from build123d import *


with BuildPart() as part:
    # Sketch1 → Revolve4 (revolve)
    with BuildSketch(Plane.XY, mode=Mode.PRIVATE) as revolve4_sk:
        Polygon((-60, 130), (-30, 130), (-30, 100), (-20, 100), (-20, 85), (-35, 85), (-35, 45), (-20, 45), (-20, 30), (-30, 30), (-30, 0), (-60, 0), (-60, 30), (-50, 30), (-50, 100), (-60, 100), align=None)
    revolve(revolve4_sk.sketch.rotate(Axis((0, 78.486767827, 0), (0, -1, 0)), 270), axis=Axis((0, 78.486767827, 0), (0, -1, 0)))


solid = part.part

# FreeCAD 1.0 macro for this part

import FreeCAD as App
import Part
import Sketcher
from FreeCAD import Vector


def add_polygon(sketch, points):
    """Adds a closed chain of lines whose ends are joined by coincident constraints."""
    first, n = sketch.GeometryCount, len(points)
    for a, b in zip(points, points[1:] + points[:1]):
        sketch.addGeometry(Part.LineSegment(App.Vector(*a, 0), App.Vector(*b, 0)), False)
    for i in range(n):
        sketch.addConstraint(Sketcher.Constraint("Coincident", first + i, 2, first + (i + 1) % n, 1))

doc = App.newDocument("Part")
body = doc.addObject("PartDesign::Body", "Body")

sketch1 = body.newObject("Sketcher::SketchObject", "Sketch")
sketch1.AttachmentSupport = (doc.getObject("XY_Plane"), [""])
sketch1.MapMode = "FlatFace"
add_polygon(sketch1, [(-30, 130), (-60, 130), (-60, 100), (-50, 100), (-50, 30), (-60, 30), (-60, 0), (-30, 0), (-30, 30), (-20, 30), (-20, 45), (-35, 45), (-35, 85), (-20, 85), (-20, 100), (-30, 100)])
sketch1.addConstraint([
    Sketcher.Constraint("Horizontal", 0),
    Sketcher.Constraint("Vertical", 1),
    Sketcher.Constraint("Horizontal", 2),
    Sketcher.Constraint("Vertical", 3),
    Sketcher.Constraint("Horizontal", 4),
    Sketcher.Constraint("Vertical", 5),
    Sketcher.Constraint("Horizontal", 6),
    Sketcher.Constraint("Vertical", 7),
    Sketcher.Constraint("Horizontal", 8),
    Sketcher.Constraint("Vertical", 9),
    Sketcher.Constraint("Horizontal", 10),
    Sketcher.Constraint("Vertical", 11),
    Sketcher.Constraint("Horizontal", 12),
    Sketcher.Constraint("Vertical", 13),
    Sketcher.Constraint("Horizontal", 14),
    Sketcher.Constraint("Vertical", 15),
    Sketcher.Constraint("PointOnObject", 5, 2, -1),
    Sketcher.Constraint("Horizontal", 4, 2, 7, 2),
    Sketcher.Constraint("Horizontal", 2, 2, 13, 2),
    Sketcher.Constraint("Vertical", 1, 2, 4, 2),
    Sketcher.Constraint("Vertical", 9, 2, 12, 2),
    Sketcher.Constraint("Vertical", 7, 2, 14, 2),
    Sketcher.Constraint("Equal", 4, 8),
    Sketcher.Constraint("Equal", 6, 1),
    Sketcher.Constraint("Equal", 1, 5),
    Sketcher.Constraint("Equal", 12, 9),
    Sketcher.Constraint("Equal", 9, 13),
    Sketcher.Constraint("DistanceX", 0, 2, 0, 1, 30.0),
    Sketcher.Constraint("DistanceX", 2, 1, 2, 2, 10.0),
    Sketcher.Constraint("DistanceX", 10, 2, 10, 1, 15.0),
    Sketcher.Constraint("DistanceY", 3, 2, 3, 1, 70.0),
    Sketcher.Constraint("DistanceX", 0, 2, -1, 1, 60.0),
])
revolution = body.newObject("PartDesign::Revolution", "Revolution")
revolution.Profile = sketch1
revolution.ReferenceAxis = (sketch1, ["V_Axis"])
revolution.Angle = 360

doc.recompute()
